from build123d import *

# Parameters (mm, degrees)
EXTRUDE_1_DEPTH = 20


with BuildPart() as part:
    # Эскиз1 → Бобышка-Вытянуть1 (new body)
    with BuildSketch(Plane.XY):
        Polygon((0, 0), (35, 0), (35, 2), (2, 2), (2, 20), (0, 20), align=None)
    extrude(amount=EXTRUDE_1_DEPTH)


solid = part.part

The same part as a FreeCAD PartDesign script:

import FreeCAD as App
import Part
import Sketcher

V = App.Vector
Q = App.Units.Quantity

doc = App.newDocument("Part")
body = doc.addObject("PartDesign::Body", "Body")

# Sketch on XY plane
sketch1 = body.newObject("Sketcher::SketchObject", "Sketch")
sketch1.AttachmentSupport = (doc.getObject("XY_Plane"), [""])
sketch1.MapMode = "FlatFace"
sketch1.addGeometry([
    Part.LineSegment(V(0, 0, 0), V(35, 0, 0)),  # 0
    Part.LineSegment(V(35, 0, 0), V(35, 2, 0)),  # 1
    Part.LineSegment(V(35, 2, 0), V(2, 2, 0)),  # 2
    Part.LineSegment(V(2, 2, 0), V(2, 20, 0)),  # 3
    Part.LineSegment(V(2, 20, 0), V(0, 20, 0)),  # 4
    Part.LineSegment(V(0, 20, 0), V(0, 0, 0)),  # 5
], False)
sketch1.addConstraint([
    Sketcher.Constraint("Coincident", 0, 2, 1, 1),
    Sketcher.Constraint("Coincident", 1, 2, 2, 1),
    Sketcher.Constraint("Coincident", 2, 2, 3, 1),
    Sketcher.Constraint("Coincident", 3, 2, 4, 1),
    Sketcher.Constraint("Coincident", 4, 2, 5, 1),
    Sketcher.Constraint("Coincident", 5, 2, 0, 1),
    Sketcher.Constraint("Horizontal", 0),
    Sketcher.Constraint("Vertical", 1),
    Sketcher.Constraint("Horizontal", 2),
    Sketcher.Constraint("Vertical", 3),
    Sketcher.Constraint("Horizontal", 4),
    Sketcher.Constraint("Vertical", 5),
    Sketcher.Constraint("Coincident", 5, 2, -1, 1),
    Sketcher.Constraint("Equal", 4, 1),
    Sketcher.Constraint("DistanceX", 0, 1, 0, 2, Q("35 mm")),
    Sketcher.Constraint("DistanceX", 2, 2, 2, 1, Q("33 mm")),
    Sketcher.Constraint("DistanceY", 3, 1, 3, 2, Q("18 mm")),
])
pad1 = body.newObject("PartDesign::Pad", "Pad")
pad1.Profile = sketch1
pad1.Length = 20

doc.recompute()
